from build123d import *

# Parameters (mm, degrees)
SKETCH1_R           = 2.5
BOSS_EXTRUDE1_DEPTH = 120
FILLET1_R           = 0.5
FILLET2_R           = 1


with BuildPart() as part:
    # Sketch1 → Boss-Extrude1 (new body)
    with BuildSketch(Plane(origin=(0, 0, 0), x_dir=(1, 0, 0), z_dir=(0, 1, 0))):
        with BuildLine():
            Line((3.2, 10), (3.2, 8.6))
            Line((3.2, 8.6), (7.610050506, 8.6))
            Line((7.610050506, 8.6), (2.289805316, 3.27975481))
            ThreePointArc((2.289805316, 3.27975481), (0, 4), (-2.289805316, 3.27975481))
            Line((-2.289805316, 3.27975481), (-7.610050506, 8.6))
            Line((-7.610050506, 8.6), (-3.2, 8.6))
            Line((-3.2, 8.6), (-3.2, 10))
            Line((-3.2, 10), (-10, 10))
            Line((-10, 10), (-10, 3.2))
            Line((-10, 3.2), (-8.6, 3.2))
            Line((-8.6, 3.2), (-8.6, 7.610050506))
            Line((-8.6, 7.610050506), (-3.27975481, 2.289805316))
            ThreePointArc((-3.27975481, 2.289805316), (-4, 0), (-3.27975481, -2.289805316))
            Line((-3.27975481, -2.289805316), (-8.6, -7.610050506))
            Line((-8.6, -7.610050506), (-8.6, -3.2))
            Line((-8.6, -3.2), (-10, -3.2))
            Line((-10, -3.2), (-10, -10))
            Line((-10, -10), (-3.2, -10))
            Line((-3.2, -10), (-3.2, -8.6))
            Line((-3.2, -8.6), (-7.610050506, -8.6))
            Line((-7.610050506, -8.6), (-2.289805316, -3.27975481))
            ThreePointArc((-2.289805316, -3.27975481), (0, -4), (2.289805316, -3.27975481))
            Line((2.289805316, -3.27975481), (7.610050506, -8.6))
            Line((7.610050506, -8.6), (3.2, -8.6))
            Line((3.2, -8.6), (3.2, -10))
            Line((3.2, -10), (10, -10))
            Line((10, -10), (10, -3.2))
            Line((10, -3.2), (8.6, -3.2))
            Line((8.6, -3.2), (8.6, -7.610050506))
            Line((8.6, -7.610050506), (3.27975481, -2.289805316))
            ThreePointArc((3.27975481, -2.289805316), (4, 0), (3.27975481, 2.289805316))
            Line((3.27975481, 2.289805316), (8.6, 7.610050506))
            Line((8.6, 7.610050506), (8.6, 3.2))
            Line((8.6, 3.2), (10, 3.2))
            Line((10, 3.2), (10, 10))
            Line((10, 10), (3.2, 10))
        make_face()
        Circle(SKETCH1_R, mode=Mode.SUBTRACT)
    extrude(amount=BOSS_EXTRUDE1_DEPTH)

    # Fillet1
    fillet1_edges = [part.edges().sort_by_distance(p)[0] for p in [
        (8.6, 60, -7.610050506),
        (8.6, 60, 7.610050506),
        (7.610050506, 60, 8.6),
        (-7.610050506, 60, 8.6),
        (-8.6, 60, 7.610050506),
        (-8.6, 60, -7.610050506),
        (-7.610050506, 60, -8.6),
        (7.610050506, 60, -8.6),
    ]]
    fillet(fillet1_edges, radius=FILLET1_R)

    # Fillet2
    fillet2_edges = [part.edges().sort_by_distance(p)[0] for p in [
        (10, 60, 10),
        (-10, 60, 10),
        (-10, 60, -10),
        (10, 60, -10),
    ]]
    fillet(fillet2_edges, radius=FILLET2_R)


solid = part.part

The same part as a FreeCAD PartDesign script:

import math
import FreeCAD as App
import Part
import Sketcher

V = App.Vector
Q = App.Units.Quantity


def edges_at(feature, points):
    """Names of the edges that pass closest to the given points."""
    edges = feature.Shape.Edges
    near = lambda p: min(range(len(edges)), key=lambda i: edges[i].distToShape(Part.Vertex(*p))[0])
    return sorted({f"Edge{near(p) + 1}" for p in points})

doc = App.newDocument("Part")
body = doc.addObject("PartDesign::Body", "Body")

sketch1 = body.newObject("Sketcher::SketchObject", "Sketch")
sketch1.AttachmentSupport = (doc.getObject("XZ_Plane"), [""])
sketch1.MapMode = "FlatFace"
sketch1.addGeometry([
    Part.LineSegment(V(3.2, -10, 0), V(3.2, -8.6, 0)),
    Part.LineSegment(V(3.2, -8.6, 0), V(7.6, -8.6, 0)),
    Part.LineSegment(V(7.6, -8.6, 0), V(2.3, -3.3, 0)),
    Part.ArcOfCircle(Part.Circle(V(0, 0, 0), V(0, 0, 1), 4), math.radians(-125), math.radians(-55)),
    Part.LineSegment(V(-2.3, -3.3, 0), V(-7.6, -8.6, 0)),
    Part.LineSegment(V(-7.6, -8.6, 0), V(-3.2, -8.6, 0)),
    Part.LineSegment(V(-3.2, -8.6, 0), V(-3.2, -10, 0)),
    Part.LineSegment(V(-3.2, -10, 0), V(-10, -10, 0)),
    Part.LineSegment(V(-10, -10, 0), V(-10, -3.2, 0)),
    Part.LineSegment(V(-10, -3.2, 0), V(-8.6, -3.2, 0)),
    Part.LineSegment(V(-8.6, -3.2, 0), V(-8.6, -7.6, 0)),
    Part.LineSegment(V(-8.6, -7.6, 0), V(-3.3, -2.3, 0)),
    Part.ArcOfCircle(Part.Circle(V(0, 0, 0), V(0, 0, 1), 4), math.radians(145), math.radians(215)),
    Part.LineSegment(V(-3.3, 2.3, 0), V(-8.6, 7.6, 0)),
    Part.LineSegment(V(-8.6, 7.6, 0), V(-8.6, 3.2, 0)),
    Part.LineSegment(V(-8.6, 3.2, 0), V(-10, 3.2, 0)),
    Part.LineSegment(V(-10, 3.2, 0), V(-10, 10, 0)),
    Part.LineSegment(V(-10, 10, 0), V(-3.2, 10, 0)),
    Part.LineSegment(V(-3.2, 10, 0), V(-3.2, 8.6, 0)),
    Part.LineSegment(V(-3.2, 8.6, 0), V(-7.6, 8.6, 0)),
    Part.LineSegment(V(-7.6, 8.6, 0), V(-2.3, 3.3, 0)),
    Part.ArcOfCircle(Part.Circle(V(0, 0, 0), V(0, 0, 1), 4), math.radians(55), math.radians(125)),
    Part.LineSegment(V(2.3, 3.3, 0), V(7.6, 8.6, 0)),
    Part.LineSegment(V(7.6, 8.6, 0), V(3.2, 8.6, 0)),
    Part.LineSegment(V(3.2, 8.6, 0), V(3.2, 10, 0)),
    Part.LineSegment(V(3.2, 10, 0), V(10, 10, 0)),
    Part.LineSegment(V(10, 10, 0), V(10, 3.2, 0)),
    Part.LineSegment(V(10, 3.2, 0), V(8.6, 3.2, 0)),
    Part.LineSegment(V(8.6, 3.2, 0), V(8.6, 7.6, 0)),
    Part.LineSegment(V(8.6, 7.6, 0), V(3.3, 2.3, 0)),
    Part.ArcOfCircle(Part.Circle(V(0, 0, 0), V(0, 0, 1), 4), math.radians(-35), math.radians(35)),
    Part.LineSegment(V(3.3, -2.3, 0), V(8.6, -7.6, 0)),
    Part.LineSegment(V(8.6, -7.6, 0), V(8.6, -3.2, 0)),
    Part.LineSegment(V(8.6, -3.2, 0), V(10, -3.2, 0)),
    Part.LineSegment(V(10, -3.2, 0), V(10, -10, 0)),
    Part.LineSegment(V(10, -10, 0), V(3.2, -10, 0)),
    Part.Circle(V(0, 0, 0), V(0, 0, 1), 2.5),
], False)
sketch1.addConstraint([
    Sketcher.Constraint("Coincident", 0, 2, 1, 1),
    Sketcher.Constraint("Coincident", 1, 2, 2, 1),
    Sketcher.Constraint("Coincident", 2, 2, 3, 2),
    Sketcher.Constraint("Coincident", 3, 1, 4, 1),
    Sketcher.Constraint("Coincident", 4, 2, 5, 1),
    Sketcher.Constraint("Coincident", 5, 2, 6, 1),
    Sketcher.Constraint("Coincident", 6, 2, 7, 1),
    Sketcher.Constraint("Coincident", 7, 2, 8, 1),
    Sketcher.Constraint("Coincident", 8, 2, 9, 1),
    Sketcher.Constraint("Coincident", 9, 2, 10, 1),
    Sketcher.Constraint("Coincident", 10, 2, 11, 1),
    Sketcher.Constraint("Coincident", 11, 2, 12, 2),
    Sketcher.Constraint("Coincident", 12, 1, 13, 1),
    Sketcher.Constraint("Coincident", 13, 2, 14, 1),
    Sketcher.Constraint("Coincident", 14, 2, 15, 1),
    Sketcher.Constraint("Coincident", 15, 2, 16, 1),
    Sketcher.Constraint("Coincident", 16, 2, 17, 1),
    Sketcher.Constraint("Coincident", 17, 2, 18, 1),
    Sketcher.Constraint("Coincident", 18, 2, 19, 1),
    Sketcher.Constraint("Coincident", 19, 2, 20, 1),
    Sketcher.Constraint("Coincident", 20, 2, 21, 2),
    Sketcher.Constraint("Coincident", 21, 1, 22, 1),
    Sketcher.Constraint("Coincident", 22, 2, 23, 1),
    Sketcher.Constraint("Coincident", 23, 2, 24, 1),
    Sketcher.Constraint("Coincident", 24, 2, 25, 1),
    Sketcher.Constraint("Coincident", 25, 2, 26, 1),
    Sketcher.Constraint("Coincident", 26, 2, 27, 1),
    Sketcher.Constraint("Coincident", 27, 2, 28, 1),
    Sketcher.Constraint("Coincident", 28, 2, 29, 1),
    Sketcher.Constraint("Coincident", 29, 2, 30, 2),
    Sketcher.Constraint("Coincident", 30, 1, 31, 1),
    Sketcher.Constraint("Coincident", 31, 2, 32, 1),
    Sketcher.Constraint("Coincident", 32, 2, 33, 1),
    Sketcher.Constraint("Coincident", 33, 2, 34, 1),
    Sketcher.Constraint("Coincident", 34, 2, 35, 1),
    Sketcher.Constraint("Coincident", 35, 2, 0, 1),
    Sketcher.Constraint("Vertical", 0),
    Sketcher.Constraint("Horizontal", 1),
    Sketcher.Constraint("Horizontal", 5),
    Sketcher.Constraint("Vertical", 6),
    Sketcher.Constraint("Horizontal", 7),
    Sketcher.Constraint("Vertical", 8),
    Sketcher.Constraint("Horizontal", 9),
    Sketcher.Constraint("Vertical", 10),
    Sketcher.Constraint("Vertical", 14),
    Sketcher.Constraint("Horizontal", 15),
    Sketcher.Constraint("Vertical", 16),
    Sketcher.Constraint("Horizontal", 17),
    Sketcher.Constraint("Vertical", 18),
    Sketcher.Constraint("Horizontal", 19),
    Sketcher.Constraint("Horizontal", 23),
    Sketcher.Constraint("Vertical", 24),
    Sketcher.Constraint("Horizontal", 25),
    Sketcher.Constraint("Vertical", 26),
    Sketcher.Constraint("Horizontal", 27),
    Sketcher.Constraint("Vertical", 28),
    Sketcher.Constraint("Vertical", 32),
    Sketcher.Constraint("Horizontal", 33),
    Sketcher.Constraint("Vertical", 34),
    Sketcher.Constraint("Horizontal", 35),
    Sketcher.Constraint("Coincident", 3, 3, -1, 1),
    Sketcher.Constraint("Coincident", 12, 3, -1, 1),
    Sketcher.Constraint("Coincident", 21, 3, -1, 1),
    Sketcher.Constraint("Coincident", 30, 3, -1, 1),
    Sketcher.Constraint("Coincident", 36, 3, -1, 1),
    Sketcher.Constraint("Equal", 3, 12),
    Sketcher.Constraint("Equal", 12, 21),
    Sketcher.Constraint("Equal", 21, 30),
    Sketcher.Constraint("Symmetric", 0, 2, 18, 2, -1, 1),
    Sketcher.Constraint("Symmetric", 4, 2, 22, 2, -1, 1),
    Sketcher.Constraint("Symmetric", 6, 2, 24, 2, -1, 1),
    Sketcher.Constraint("Symmetric", 8, 2, 26, 2, -1, 1),
    Sketcher.Constraint("Symmetric", 10, 2, 28, 2, -1, 1),
    Sketcher.Constraint("Symmetric", 13, 2, 31, 2, -1, 1),
    Sketcher.Constraint("Symmetric", 15, 2, 33, 2, -1, 1),
    Sketcher.Constraint("Symmetric", 1, 2, 4, 2, -2),
    Sketcher.Constraint("Symmetric", 17, 2, 24, 2, -2),
    Sketcher.Constraint("Symmetric", 15, 2, 26, 2, -2),
    Sketcher.Constraint("Symmetric", 13, 2, 28, 2, -2),
    Sketcher.Constraint("Perpendicular", 2, 4),
    Sketcher.Constraint("Parallel", 4, 11),
    Sketcher.Constraint("Perpendicular", 11, 13),
    Sketcher.Constraint("Parallel", 13, 20),
    Sketcher.Constraint("Perpendicular", 20, 22),
    Sketcher.Constraint("Parallel", 22, 29),
    Sketcher.Constraint("Perpendicular", 29, 31),
    Sketcher.Constraint("Horizontal", 2, 2, 3, 1),
    Sketcher.Constraint("Horizontal", 20, 2, 21, 1),
    Sketcher.Constraint("Horizontal", 7, 2, 34, 2),
    Sketcher.Constraint("Equal", 33, 0),
    Sketcher.Constraint("Equal", 35, 8),
    Sketcher.Constraint("Equal", 23, 10),
    Sketcher.Constraint("Equal", 4, 11),
    Sketcher.Constraint("Diameter", 36, Q("5 mm")),
    Sketcher.Constraint("Radius", 3, Q("4 mm")),
    Sketcher.Constraint("DistanceX", 7, 2, 7, 1, Q("6.8 mm")),
    Sketcher.Constraint("DistanceX", 9, 1, 9, 2, Q("1.4 mm")),
    Sketcher.Constraint("DistanceY", 6, 2, -1, 1, Q("10 mm")),
    Sketcher.Constraint("DistanceX", 1, 1, 1, 2, Q("4.410051 mm")),
])
pad1 = body.newObject("PartDesign::Pad", "Pad")
pad1.Profile = sketch1
pad1.Length = 120
pad1.Reversed = True
doc.recompute()

fillet = body.newObject("PartDesign::Fillet", "Fillet")
fillet.Base = (pad1, edges_at(pad1, [
    (8.6, 60, -7.61),
    (8.6, 60, 7.61),
    (7.61, 60, 8.6),
    (-7.61, 60, 8.6),
    (-8.6, 60, 7.61),
    (-8.6, 60, -7.61),
    (-7.61, 60, -8.6),
    (7.61, 60, -8.6),
]))
fillet.Radius = 0.5
doc.recompute()

fillet2 = body.newObject("PartDesign::Fillet", "Fillet001")
fillet2.Base = (fillet, edges_at(fillet, [
    (10, 60, 10),
    (-10, 60, 10),
    (-10, 60, -10),
    (10, 60, -10),
]))
fillet2.Radius = 1

doc.recompute()
